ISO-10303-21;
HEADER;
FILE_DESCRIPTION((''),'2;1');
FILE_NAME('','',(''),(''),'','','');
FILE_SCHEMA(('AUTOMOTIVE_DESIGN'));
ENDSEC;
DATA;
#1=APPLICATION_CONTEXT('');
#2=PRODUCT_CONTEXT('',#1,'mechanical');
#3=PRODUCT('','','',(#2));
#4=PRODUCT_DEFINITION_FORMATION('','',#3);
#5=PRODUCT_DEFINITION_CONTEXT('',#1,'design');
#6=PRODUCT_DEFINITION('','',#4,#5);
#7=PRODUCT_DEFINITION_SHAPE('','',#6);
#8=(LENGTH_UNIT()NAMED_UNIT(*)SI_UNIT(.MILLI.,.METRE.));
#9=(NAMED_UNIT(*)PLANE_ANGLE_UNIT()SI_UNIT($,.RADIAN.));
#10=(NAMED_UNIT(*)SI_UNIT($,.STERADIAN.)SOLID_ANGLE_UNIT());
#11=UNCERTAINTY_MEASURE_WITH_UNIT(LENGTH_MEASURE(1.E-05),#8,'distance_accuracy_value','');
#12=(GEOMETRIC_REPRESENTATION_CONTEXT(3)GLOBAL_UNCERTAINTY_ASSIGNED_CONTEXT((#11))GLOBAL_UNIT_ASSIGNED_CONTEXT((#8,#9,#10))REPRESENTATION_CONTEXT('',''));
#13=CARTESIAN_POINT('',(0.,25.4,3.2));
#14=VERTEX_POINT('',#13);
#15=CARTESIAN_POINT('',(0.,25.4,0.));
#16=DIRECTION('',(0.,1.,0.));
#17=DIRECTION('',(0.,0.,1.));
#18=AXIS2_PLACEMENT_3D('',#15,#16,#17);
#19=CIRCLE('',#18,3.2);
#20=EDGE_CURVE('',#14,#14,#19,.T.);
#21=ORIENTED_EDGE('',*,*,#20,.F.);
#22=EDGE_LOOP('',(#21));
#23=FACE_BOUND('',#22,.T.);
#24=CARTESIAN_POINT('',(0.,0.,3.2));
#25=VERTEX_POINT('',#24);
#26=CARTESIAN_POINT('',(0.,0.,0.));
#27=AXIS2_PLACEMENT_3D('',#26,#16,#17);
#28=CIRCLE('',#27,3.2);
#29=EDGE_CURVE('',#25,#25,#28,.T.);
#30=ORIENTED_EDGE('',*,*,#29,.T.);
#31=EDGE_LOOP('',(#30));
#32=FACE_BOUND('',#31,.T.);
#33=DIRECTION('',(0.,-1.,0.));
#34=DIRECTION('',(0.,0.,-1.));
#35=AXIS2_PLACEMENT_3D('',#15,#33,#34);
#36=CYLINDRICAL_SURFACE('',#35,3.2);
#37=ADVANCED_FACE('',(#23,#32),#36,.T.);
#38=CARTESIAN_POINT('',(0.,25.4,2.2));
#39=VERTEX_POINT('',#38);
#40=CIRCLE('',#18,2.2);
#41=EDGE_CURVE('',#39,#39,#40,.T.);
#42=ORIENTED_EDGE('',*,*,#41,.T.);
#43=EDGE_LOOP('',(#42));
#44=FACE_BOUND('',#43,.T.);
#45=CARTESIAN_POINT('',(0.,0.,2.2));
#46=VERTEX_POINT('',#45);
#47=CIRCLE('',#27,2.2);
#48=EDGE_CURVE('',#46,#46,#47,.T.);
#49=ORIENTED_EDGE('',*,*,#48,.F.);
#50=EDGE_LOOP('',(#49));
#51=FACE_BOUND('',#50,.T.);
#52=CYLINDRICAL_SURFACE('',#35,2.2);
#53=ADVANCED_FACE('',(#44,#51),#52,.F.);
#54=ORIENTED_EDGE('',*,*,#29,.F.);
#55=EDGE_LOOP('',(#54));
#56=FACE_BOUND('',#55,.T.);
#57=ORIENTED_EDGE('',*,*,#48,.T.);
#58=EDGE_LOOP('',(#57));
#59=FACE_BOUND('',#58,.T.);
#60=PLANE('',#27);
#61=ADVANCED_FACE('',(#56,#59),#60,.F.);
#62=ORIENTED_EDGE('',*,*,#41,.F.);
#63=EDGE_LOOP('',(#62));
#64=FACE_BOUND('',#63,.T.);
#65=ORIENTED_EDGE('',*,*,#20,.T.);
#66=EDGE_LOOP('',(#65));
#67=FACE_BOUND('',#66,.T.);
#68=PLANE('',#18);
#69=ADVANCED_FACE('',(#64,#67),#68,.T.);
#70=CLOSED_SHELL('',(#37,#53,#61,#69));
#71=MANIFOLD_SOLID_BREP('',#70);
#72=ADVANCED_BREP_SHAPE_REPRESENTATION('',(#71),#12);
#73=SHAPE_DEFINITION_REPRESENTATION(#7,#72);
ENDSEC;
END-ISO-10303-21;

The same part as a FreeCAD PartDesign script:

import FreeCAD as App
import Part
import Sketcher
from FreeCAD import Vector

doc = App.newDocument("Part")
body = doc.addObject("PartDesign::Body", "Body")

# Sketch on XZ plane
sketch1 = body.newObject("Sketcher::SketchObject", "Sketch")
sketch1.AttachmentSupport = (doc.getObject("XZ_Plane"), [""])
sketch1.MapMode = "FlatFace"
sketch1.addGeometry(Part.Circle(Vector(0, 0, 0), Vector(0, 0, 1), 3.2), False)
sketch1.addGeometry(Part.Circle(Vector(0, 0, 0), Vector(0, 0, 1), 2.2), False)
sketch1.addConstraint(Sketcher.Constraint("Coincident", 0, 3, -1, 1))
sketch1.addConstraint(Sketcher.Constraint("Coincident", 1, 3, -1, 1))
sketch1.addConstraint(Sketcher.Constraint("Diameter", 0, 6.4))
sketch1.addConstraint(Sketcher.Constraint("Diameter", 1, 4.4))
pad1 = body.newObject("PartDesign::Pad", "Pad")
pad1.Profile = sketch1
pad1.Length = 25.4
pad1.Reversed = True

doc.recompute()
